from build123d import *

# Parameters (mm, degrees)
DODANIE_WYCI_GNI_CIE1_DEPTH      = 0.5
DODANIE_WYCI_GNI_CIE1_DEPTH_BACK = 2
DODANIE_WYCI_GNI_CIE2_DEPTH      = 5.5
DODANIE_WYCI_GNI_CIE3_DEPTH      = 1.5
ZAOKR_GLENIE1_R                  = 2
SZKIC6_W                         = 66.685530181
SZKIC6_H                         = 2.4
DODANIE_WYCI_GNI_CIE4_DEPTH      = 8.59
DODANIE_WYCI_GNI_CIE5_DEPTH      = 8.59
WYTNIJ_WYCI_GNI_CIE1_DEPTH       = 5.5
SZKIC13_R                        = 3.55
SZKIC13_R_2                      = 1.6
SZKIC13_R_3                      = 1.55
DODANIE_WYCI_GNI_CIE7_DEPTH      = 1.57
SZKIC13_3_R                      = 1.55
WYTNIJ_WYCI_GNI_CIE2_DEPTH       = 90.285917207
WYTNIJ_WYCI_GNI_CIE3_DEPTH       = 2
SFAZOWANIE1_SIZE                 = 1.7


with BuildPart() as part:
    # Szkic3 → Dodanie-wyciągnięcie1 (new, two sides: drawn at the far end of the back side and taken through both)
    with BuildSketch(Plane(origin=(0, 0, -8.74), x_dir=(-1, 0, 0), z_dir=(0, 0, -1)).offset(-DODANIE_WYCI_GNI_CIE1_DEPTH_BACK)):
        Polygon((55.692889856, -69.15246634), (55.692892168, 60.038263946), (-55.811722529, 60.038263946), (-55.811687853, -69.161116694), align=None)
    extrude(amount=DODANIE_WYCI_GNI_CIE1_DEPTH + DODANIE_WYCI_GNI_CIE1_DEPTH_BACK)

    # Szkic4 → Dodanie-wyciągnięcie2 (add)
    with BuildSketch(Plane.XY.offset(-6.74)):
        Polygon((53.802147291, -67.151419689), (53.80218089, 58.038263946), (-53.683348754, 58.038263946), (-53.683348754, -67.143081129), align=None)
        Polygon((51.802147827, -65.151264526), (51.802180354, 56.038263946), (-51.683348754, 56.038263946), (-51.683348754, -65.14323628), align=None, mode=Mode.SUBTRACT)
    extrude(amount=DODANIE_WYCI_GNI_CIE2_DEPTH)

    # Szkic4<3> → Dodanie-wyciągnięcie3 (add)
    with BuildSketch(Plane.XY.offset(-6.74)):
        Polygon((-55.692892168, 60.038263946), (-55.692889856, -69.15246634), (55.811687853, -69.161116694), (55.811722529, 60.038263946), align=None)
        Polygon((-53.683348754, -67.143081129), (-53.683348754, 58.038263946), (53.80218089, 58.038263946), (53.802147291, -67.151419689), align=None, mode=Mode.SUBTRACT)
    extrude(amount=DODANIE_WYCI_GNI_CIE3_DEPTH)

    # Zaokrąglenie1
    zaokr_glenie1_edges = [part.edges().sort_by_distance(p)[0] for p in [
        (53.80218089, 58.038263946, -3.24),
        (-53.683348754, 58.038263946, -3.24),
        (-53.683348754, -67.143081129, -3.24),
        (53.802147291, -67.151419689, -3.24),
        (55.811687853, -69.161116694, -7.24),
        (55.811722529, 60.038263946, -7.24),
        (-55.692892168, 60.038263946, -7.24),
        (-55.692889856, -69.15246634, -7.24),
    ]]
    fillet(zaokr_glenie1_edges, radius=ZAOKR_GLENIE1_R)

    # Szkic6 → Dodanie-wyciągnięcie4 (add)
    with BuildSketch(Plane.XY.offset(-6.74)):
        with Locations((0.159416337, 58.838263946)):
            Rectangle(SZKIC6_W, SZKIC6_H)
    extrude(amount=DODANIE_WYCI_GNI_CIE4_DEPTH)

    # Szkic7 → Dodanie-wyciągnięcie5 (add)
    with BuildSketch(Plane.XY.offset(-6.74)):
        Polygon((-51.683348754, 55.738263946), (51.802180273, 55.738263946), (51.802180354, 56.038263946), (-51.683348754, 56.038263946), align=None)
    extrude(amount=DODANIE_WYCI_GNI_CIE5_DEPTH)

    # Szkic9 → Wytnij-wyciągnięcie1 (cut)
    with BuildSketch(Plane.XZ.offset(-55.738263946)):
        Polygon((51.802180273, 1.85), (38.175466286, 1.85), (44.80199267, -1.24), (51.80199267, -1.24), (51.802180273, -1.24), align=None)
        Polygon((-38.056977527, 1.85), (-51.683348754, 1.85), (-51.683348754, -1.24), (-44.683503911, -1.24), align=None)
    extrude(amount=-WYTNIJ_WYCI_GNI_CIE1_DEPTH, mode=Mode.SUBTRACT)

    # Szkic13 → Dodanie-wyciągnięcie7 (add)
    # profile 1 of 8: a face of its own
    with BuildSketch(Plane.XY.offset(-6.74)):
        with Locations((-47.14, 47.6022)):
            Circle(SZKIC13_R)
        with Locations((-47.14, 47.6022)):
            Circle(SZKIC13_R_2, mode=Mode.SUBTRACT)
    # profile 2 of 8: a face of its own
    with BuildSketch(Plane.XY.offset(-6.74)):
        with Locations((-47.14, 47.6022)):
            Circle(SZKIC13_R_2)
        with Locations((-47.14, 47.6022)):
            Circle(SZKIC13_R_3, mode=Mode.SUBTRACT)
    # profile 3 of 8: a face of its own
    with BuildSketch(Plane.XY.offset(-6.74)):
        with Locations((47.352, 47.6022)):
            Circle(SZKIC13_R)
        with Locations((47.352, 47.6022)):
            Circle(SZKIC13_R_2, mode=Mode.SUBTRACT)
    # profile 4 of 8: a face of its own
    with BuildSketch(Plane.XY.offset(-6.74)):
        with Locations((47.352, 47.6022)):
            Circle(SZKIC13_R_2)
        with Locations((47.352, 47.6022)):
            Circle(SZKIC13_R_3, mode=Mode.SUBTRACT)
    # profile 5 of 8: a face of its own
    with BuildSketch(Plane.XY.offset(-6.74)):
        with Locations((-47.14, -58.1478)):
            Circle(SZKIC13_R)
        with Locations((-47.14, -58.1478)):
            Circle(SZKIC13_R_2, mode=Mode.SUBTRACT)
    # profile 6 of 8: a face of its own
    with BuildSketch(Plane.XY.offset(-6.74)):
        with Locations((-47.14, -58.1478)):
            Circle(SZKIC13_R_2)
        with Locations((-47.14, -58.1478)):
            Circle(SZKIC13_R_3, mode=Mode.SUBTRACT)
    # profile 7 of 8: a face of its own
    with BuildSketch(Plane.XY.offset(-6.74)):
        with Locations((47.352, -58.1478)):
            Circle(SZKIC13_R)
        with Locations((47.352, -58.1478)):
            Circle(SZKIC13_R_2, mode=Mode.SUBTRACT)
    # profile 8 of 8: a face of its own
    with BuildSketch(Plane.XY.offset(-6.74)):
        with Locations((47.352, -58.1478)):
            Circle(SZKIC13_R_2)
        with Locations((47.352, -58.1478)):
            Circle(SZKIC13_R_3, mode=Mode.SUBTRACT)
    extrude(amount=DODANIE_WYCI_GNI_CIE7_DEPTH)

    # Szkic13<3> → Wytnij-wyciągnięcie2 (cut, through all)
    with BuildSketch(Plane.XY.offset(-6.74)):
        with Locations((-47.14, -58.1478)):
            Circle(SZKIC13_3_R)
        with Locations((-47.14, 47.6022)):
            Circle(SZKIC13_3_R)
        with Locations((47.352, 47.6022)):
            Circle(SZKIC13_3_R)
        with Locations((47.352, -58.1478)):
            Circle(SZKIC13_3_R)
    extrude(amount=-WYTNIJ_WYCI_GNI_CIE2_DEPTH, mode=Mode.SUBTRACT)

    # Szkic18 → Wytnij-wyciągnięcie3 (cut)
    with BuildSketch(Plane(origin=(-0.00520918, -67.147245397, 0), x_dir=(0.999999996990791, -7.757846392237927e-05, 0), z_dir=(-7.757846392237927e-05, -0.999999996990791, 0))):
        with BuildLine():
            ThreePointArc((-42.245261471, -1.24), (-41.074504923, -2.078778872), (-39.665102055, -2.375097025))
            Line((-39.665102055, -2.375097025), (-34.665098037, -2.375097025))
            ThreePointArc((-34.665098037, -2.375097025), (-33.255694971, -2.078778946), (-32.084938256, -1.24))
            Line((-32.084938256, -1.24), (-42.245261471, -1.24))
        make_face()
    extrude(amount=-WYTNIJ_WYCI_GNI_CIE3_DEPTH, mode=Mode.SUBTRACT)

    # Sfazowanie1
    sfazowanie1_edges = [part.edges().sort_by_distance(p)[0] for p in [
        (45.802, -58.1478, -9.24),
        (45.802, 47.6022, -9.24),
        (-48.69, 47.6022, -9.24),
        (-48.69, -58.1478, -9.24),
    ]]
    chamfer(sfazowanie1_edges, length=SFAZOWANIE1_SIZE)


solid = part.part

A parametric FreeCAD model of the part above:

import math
import FreeCAD as App
import Part
import Sketcher
from FreeCAD import Vector
Q = App.Units.Quantity


def edges_at(feature, points):
    """Names of the edges that pass closest to the given points."""
    edges = feature.Shape.Edges
    near = lambda p: min(range(len(edges)), key=lambda i: edges[i].distToShape(Part.Vertex(*p))[0])
    return sorted({f"Edge{near(p) + 1}" for p in points})


def add_polygon(sketch, points):
    """Adds a closed chain of lines whose ends are joined by coincident constraints."""
    first, n = sketch.GeometryCount, len(points)
    for a, b in zip(points, points[1:] + points[:1]):
        sketch.addGeometry(Part.LineSegment(App.Vector(*a, 0), App.Vector(*b, 0)), False)
    for i in range(n):
        sketch.addConstraint(Sketcher.Constraint("Coincident", first + i, 2, first + (i + 1) % n, 1))

doc = App.newDocument("Part")
body = doc.addObject("PartDesign::Body", "Body")

sketch1 = body.newObject("Sketcher::SketchObject", "Sketch")
sketch1.AttachmentSupport = (doc.getObject("XY_Plane"), [""])
sketch1.MapMode = "FlatFace"
sketch1.AttachmentOffset = App.Placement(Vector(0, 0, -8.74), App.Rotation())
add_polygon(sketch1, [(-55.69289, -69.152466), (-55.692892, 60.038264), (55.811723, 60.038264), (55.811688, -69.161117)])
sketch1.addConstraint(Sketcher.Constraint("Horizontal", 1))
sketch1.addConstraint(Sketcher.Constraint("Parallel", 0, 2))
sketch1.addConstraint(Sketcher.Constraint("Angle", 0, Q("90.000001 deg")))
sketch1.addConstraint(Sketcher.Constraint("Distance", 0, 129.19073))
sketch1.addConstraint(Sketcher.Constraint("Distance", 2, 129.199381))
sketch1.addConstraint(Sketcher.Constraint("Distance", 3, 111.504578))
sketch1.addConstraint(Sketcher.Constraint("DistanceX", 3, 2, -1, 1, 55.69289))
sketch1.addConstraint(Sketcher.Constraint("DistanceY", -1, 1, 0, 2, 60.038264))
pad1 = body.newObject("PartDesign::Pad", "Pad")
pad1.Profile = sketch1
pad1.Type = "TwoLengths"
pad1.Length = 0.5
pad1.Length2 = 2
pad1.Reversed = True

sketch2 = body.newObject("Sketcher::SketchObject", "Sketch001")
sketch2.AttachmentSupport = (doc.getObject("XY_Plane"), [""])
sketch2.MapMode = "FlatFace"
sketch2.AttachmentOffset = App.Placement(Vector(0, 0, -6.74), App.Rotation())
add_polygon(sketch2, [(53.802147, -67.15142), (53.802181, 58.038264), (-53.683349, 58.038264), (-53.683349, -67.143081)])
add_polygon(sketch2, [(51.80218, 56.038264), (51.802148, -65.151265), (-51.683349, -65.143236), (-51.683349, 56.038264)])
sketch2.addConstraint(Sketcher.Constraint("Horizontal", 1))
sketch2.addConstraint(Sketcher.Constraint("Vertical", 2))
sketch2.addConstraint(Sketcher.Constraint("Vertical", 6))
sketch2.addConstraint(Sketcher.Constraint("Horizontal", 7))
sketch2.addConstraint(Sketcher.Constraint("Parallel", 0, 4))
sketch2.addConstraint(Sketcher.Constraint("Parallel", 3, 5))
sketch2.addConstraint(Sketcher.Constraint("Angle", 0, Q("89.999985 deg")))
sketch2.addConstraint(Sketcher.Constraint("DistanceX", 4, 2, 3, 2, 1.999999))
sketch2.addConstraint(Sketcher.Constraint("DistanceX", 2, 2, 5, 2, 2.0))
sketch2.addConstraint(Sketcher.Constraint("DistanceY", 6, 2, 1, 2, 2.0))
sketch2.addConstraint(Sketcher.Constraint("DistanceY", 6, 1, 6, 2, 121.1815))
sketch2.addConstraint(Sketcher.Constraint("DistanceX", 1, 2, 1, 1, 107.48553))
sketch2.addConstraint(Sketcher.Constraint("Distance", 4, 121.189528))
sketch2.addConstraint(Sketcher.Constraint("DistanceY", 2, 2, 2, 1, 125.181345))
sketch2.addConstraint(Sketcher.Constraint("DistanceX", -1, 1, 0, 2, 53.802181))
sketch2.addConstraint(Sketcher.Constraint("DistanceY", 2, 2, -1, 1, 67.143081))
pad2 = body.newObject("PartDesign::Pad", "Pad001")
pad2.Profile = sketch2
pad2.Length = 5.5

sketch3 = body.newObject("Sketcher::SketchObject", "Sketch002")
sketch3.AttachmentSupport = (doc.getObject("XY_Plane"), [""])
sketch3.MapMode = "FlatFace"
sketch3.AttachmentOffset = App.Placement(Vector(0, 0, -6.74), App.Rotation())
add_polygon(sketch3, [(-55.692892, 60.038264), (-55.69289, -69.152466), (55.811688, -69.161117), (55.811723, 60.038264)])
add_polygon(sketch3, [(53.802147, -67.15142), (-53.683349, -67.143081), (-53.683349, 58.038264), (53.802181, 58.038264)])
sketch3.addConstraint(Sketcher.Constraint("Horizontal", 3))
sketch3.addConstraint(Sketcher.Constraint("Vertical", 5))
sketch3.addConstraint(Sketcher.Constraint("Horizontal", 6))
sketch3.addConstraint(Sketcher.Constraint("DistanceY", 5, 2, 3, 2, 2.0))
sketch3.addConstraint(Sketcher.Constraint("DistanceX", 6, 1, 6, 2, 107.48553))
sketch3.addConstraint(Sketcher.Constraint("Distance", 0, 129.19073))
sketch3.addConstraint(Sketcher.Constraint("Distance", 1, 111.504578))
sketch3.addConstraint(Sketcher.Constraint("Distance", 2, 129.199381))
sketch3.addConstraint(Sketcher.Constraint("DistanceX", 3, 2, 3, 1, 111.504615))
sketch3.addConstraint(Sketcher.Constraint("DistanceY", 5, 1, 5, 2, 125.181345))
sketch3.addConstraint(Sketcher.Constraint("DistanceX", 0, 2, -1, 1, 55.69289))
sketch3.addConstraint(Sketcher.Constraint("DistanceX", 4, 2, -1, 1, 53.683349))
sketch3.addConstraint(Sketcher.Constraint("DistanceY", 4, 2, -1, 1, 67.143081))
sketch3.addConstraint(Sketcher.Constraint("DistanceY", 7, 2, -1, 1, 67.15142))
sketch3.addConstraint(Sketcher.Constraint("DistanceX", 3, 2, 1, 2, 111.50458))
sketch3.addConstraint(Sketcher.Constraint("DistanceX", 7, 2, 1, 2, 2.009541))
pad3 = body.newObject("PartDesign::Pad", "Pad002")
pad3.Profile = sketch3
pad3.Length = 1.5
doc.recompute()

fillet = body.newObject("PartDesign::Fillet", "Fillet")
fillet.Base = (pad3, edges_at(pad3, [
    (53.802, 58.038, -3.24),
    (-53.683, 58.038, -3.24),
    (-53.683, -67.143, -3.24),
    (53.802, -67.151, -3.24),
    (55.812, -69.161, -7.24),
    (55.812, 60.038, -7.24),
    (-55.693, 60.038, -7.24),
    (-55.693, -69.152, -7.24),
]))
fillet.Radius = 2

sketch4 = body.newObject("Sketcher::SketchObject", "Sketch003")
sketch4.AttachmentSupport = (doc.getObject("XY_Plane"), [""])
sketch4.MapMode = "FlatFace"
sketch4.AttachmentOffset = App.Placement(Vector(0, 0, -6.74), App.Rotation())
add_polygon(sketch4, [(-33.183349, 60.038264), (-33.183349, 57.638264), (33.502181, 57.638264), (33.502181, 60.038264)])
sketch4.addConstraint(Sketcher.Constraint("Vertical", 0))
sketch4.addConstraint(Sketcher.Constraint("Horizontal", 1))
sketch4.addConstraint(Sketcher.Constraint("Vertical", 2))
sketch4.addConstraint(Sketcher.Constraint("Horizontal", 3))
sketch4.addConstraint(Sketcher.Constraint("DistanceY", 0, 2, 0, 1, 2.4))
sketch4.addConstraint(Sketcher.Constraint("DistanceX", 1, 1, 1, 2, 66.68553))
sketch4.addConstraint(Sketcher.Constraint("DistanceX", 0, 2, -1, 1, 33.183349))
sketch4.addConstraint(Sketcher.Constraint("DistanceY", -1, 1, 0, 2, 57.638264))
pad4 = body.newObject("PartDesign::Pad", "Pad003")
pad4.Profile = sketch4
pad4.Length = 8.59

sketch5 = body.newObject("Sketcher::SketchObject", "Sketch004")
sketch5.AttachmentSupport = (doc.getObject("XY_Plane"), [""])
sketch5.MapMode = "FlatFace"
sketch5.AttachmentOffset = App.Placement(Vector(0, 0, -6.74), App.Rotation())
add_polygon(sketch5, [(-51.683349, 55.738264), (51.80218, 55.738264), (51.80218, 56.038264), (-51.683349, 56.038264)])
sketch5.addConstraint(Sketcher.Constraint("Horizontal", 0))
sketch5.addConstraint(Sketcher.Constraint("Vertical", 1))
sketch5.addConstraint(Sketcher.Constraint("Horizontal", 2))
sketch5.addConstraint(Sketcher.Constraint("Vertical", 3))
sketch5.addConstraint(Sketcher.Constraint("DistanceY", 1, 1, 1, 2, 0.3))
sketch5.addConstraint(Sketcher.Constraint("DistanceX", 0, 1, 0, 2, 103.485529))
sketch5.addConstraint(Sketcher.Constraint("DistanceX", -1, 1, 0, 2, 51.80218))
sketch5.addConstraint(Sketcher.Constraint("DistanceY", -1, 1, 0, 2, 55.738264))
pad5 = body.newObject("PartDesign::Pad", "Pad004")
pad5.Profile = sketch5
pad5.Length = 8.59

sketch6 = body.newObject("Sketcher::SketchObject", "Sketch005")
sketch6.AttachmentSupport = (doc.getObject("XZ_Plane"), [""])
sketch6.MapMode = "FlatFace"
sketch6.AttachmentOffset = App.Placement(Vector(0, 0, -55.738264), App.Rotation())
add_polygon(sketch6, [(51.80218, 1.85), (38.175466, 1.85), (44.801993, -1.24), (51.80218, -1.24)])
add_polygon(sketch6, [(-38.056978, 1.85), (-51.683349, 1.85), (-51.683349, -1.24), (-44.683504, -1.24)])
sketch6.addConstraint(Sketcher.Constraint("Horizontal", 0))
sketch6.addConstraint(Sketcher.Constraint("Horizontal", 2))
sketch6.addConstraint(Sketcher.Constraint("Vertical", 3))
sketch6.addConstraint(Sketcher.Constraint("Horizontal", 4))
sketch6.addConstraint(Sketcher.Constraint("Vertical", 5))
sketch6.addConstraint(Sketcher.Constraint("Horizontal", 6))
sketch6.addConstraint(Sketcher.Constraint("Horizontal", 3, 2, 4, 2))
sketch6.addConstraint(Sketcher.Constraint("Horizontal", 2, 2, 5, 2))
sketch6.addConstraint(Sketcher.Constraint("Equal", 1, 7))
sketch6.addConstraint(Sketcher.Constraint("Angle", 1, Q("-25 deg")))
sketch6.addConstraint(Sketcher.Constraint("DistanceY", 3, 1, 3, 2, 3.09))
sketch6.addConstraint(Sketcher.Constraint("DistanceY", -1, 1, 0, 2, 1.85))
sketch6.addConstraint(Sketcher.Constraint("DistanceX", 4, 2, 4, 1, 13.626371))
sketch6.addConstraint(Sketcher.Constraint("DistanceX", 0, 2, 0, 1, 13.626714))
sketch6.addConstraint(Sketcher.Constraint("DistanceX", -1, 1, 2, 2, 51.80218))
sketch6.addConstraint(Sketcher.Constraint("DistanceX", 4, 2, -1, 1, 51.683349))
pocket1 = body.newObject("PartDesign::Pocket", "Pocket")
pocket1.Profile = sketch6
pocket1.Length = 5.5

sketch7 = body.newObject("Sketcher::SketchObject", "Sketch006")
sketch7.AttachmentSupport = (doc.getObject("XY_Plane"), [""])
sketch7.MapMode = "FlatFace"
sketch7.AttachmentOffset = App.Placement(Vector(0, 0, -6.74), App.Rotation())
sketch7.addGeometry(Part.Circle(Vector(-47.14, 47.6022, 0), Vector(0, 0, 1), 3.55), False)
sketch7.addGeometry(Part.Circle(Vector(-47.14, 47.6022, 0), Vector(0, 0, 1), 1.55), False)
sketch7.addGeometry(Part.Circle(Vector(47.352, 47.6022, 0), Vector(0, 0, 1), 3.55), False)
sketch7.addGeometry(Part.Circle(Vector(47.352, 47.6022, 0), Vector(0, 0, 1), 1.55), False)
sketch7.addGeometry(Part.Circle(Vector(-47.14, -58.1478, 0), Vector(0, 0, 1), 3.55), False)
sketch7.addGeometry(Part.Circle(Vector(-47.14, -58.1478, 0), Vector(0, 0, 1), 1.55), False)
sketch7.addGeometry(Part.Circle(Vector(47.352, -58.1478, 0), Vector(0, 0, 1), 3.55), False)
sketch7.addGeometry(Part.Circle(Vector(47.352, -58.1478, 0), Vector(0, 0, 1), 1.55), False)
sketch7.addConstraint(Sketcher.Constraint("Coincident", 1, 3, 0, 3))
sketch7.addConstraint(Sketcher.Constraint("Coincident", 3, 3, 2, 3))
sketch7.addConstraint(Sketcher.Constraint("Coincident", 5, 3, 4, 3))
sketch7.addConstraint(Sketcher.Constraint("Coincident", 7, 3, 6, 3))
sketch7.addConstraint(Sketcher.Constraint("Equal", 0, 2))
sketch7.addConstraint(Sketcher.Constraint("Equal", 1, 3))
sketch7.addConstraint(Sketcher.Constraint("Equal", 2, 4))
sketch7.addConstraint(Sketcher.Constraint("Equal", 3, 5))
sketch7.addConstraint(Sketcher.Constraint("Equal", 4, 6))
sketch7.addConstraint(Sketcher.Constraint("Equal", 5, 7))
sketch7.addConstraint(Sketcher.Constraint("Horizontal", 1, 3, 2, 3))
sketch7.addConstraint(Sketcher.Constraint("Horizontal", 5, 3, 6, 3))
sketch7.addConstraint(Sketcher.Constraint("Vertical", 1, 3, 4, 3))
sketch7.addConstraint(Sketcher.Constraint("Vertical", 3, 3, 6, 3))
sketch7.addConstraint(Sketcher.Constraint("Diameter", 0, 7.1))
sketch7.addConstraint(Sketcher.Constraint("Diameter", 1, 3.1))
sketch7.addConstraint(Sketcher.Constraint("DistanceX", 0, 3, -1, 1, 47.14))
sketch7.addConstraint(Sketcher.Constraint("DistanceY", 4, 3, 0, 3, 105.75))
sketch7.addConstraint(Sketcher.Constraint("DistanceX", -1, 1, 2, 3, 47.352))
sketch7.addConstraint(Sketcher.Constraint("DistanceY", -1, 1, 0, 3, 47.6022))
pad6 = body.newObject("PartDesign::Pad", "Pad005")
pad6.Profile = sketch7
pad6.Length = 1.57

sketch8 = body.newObject("Sketcher::SketchObject", "Sketch007")
sketch8.AttachmentSupport = (doc.getObject("XY_Plane"), [""])
sketch8.MapMode = "FlatFace"
sketch8.AttachmentOffset = App.Placement(Vector(0, 0, -6.74), App.Rotation())
sketch8.addGeometry(Part.Circle(Vector(-47.14, -58.1478, 0), Vector(0, 0, 1), 1.55), False)
sketch8.addGeometry(Part.Circle(Vector(-47.14, 47.6022, 0), Vector(0, 0, 1), 1.55), False)
sketch8.addGeometry(Part.Circle(Vector(47.352, 47.6022, 0), Vector(0, 0, 1), 1.55), False)
sketch8.addGeometry(Part.Circle(Vector(47.352, -58.1478, 0), Vector(0, 0, 1), 1.55), False)
sketch8.addConstraint(Sketcher.Constraint("Equal", 0, 1))
sketch8.addConstraint(Sketcher.Constraint("Equal", 1, 2))
sketch8.addConstraint(Sketcher.Constraint("Equal", 2, 3))
sketch8.addConstraint(Sketcher.Constraint("Horizontal", 1, 3, 2, 3))
sketch8.addConstraint(Sketcher.Constraint("Horizontal", 0, 3, 3, 3))
sketch8.addConstraint(Sketcher.Constraint("Vertical", 0, 3, 1, 3))
sketch8.addConstraint(Sketcher.Constraint("Vertical", 2, 3, 3, 3))
sketch8.addConstraint(Sketcher.Constraint("Diameter", 0, 3.1))
sketch8.addConstraint(Sketcher.Constraint("DistanceX", 0, 3, -1, 1, 47.14))
sketch8.addConstraint(Sketcher.Constraint("DistanceY", 0, 3, 1, 3, 105.75))
sketch8.addConstraint(Sketcher.Constraint("DistanceX", -1, 1, 2, 3, 47.352))
sketch8.addConstraint(Sketcher.Constraint("DistanceY", 0, 3, -1, 1, 58.1478))
pocket2 = body.newObject("PartDesign::Pocket", "Pocket001")
pocket2.Profile = sketch8
pocket2.Type = "ThroughAll"

sketch9 = body.newObject("Sketcher::SketchObject", "Sketch008")
sketch9.Placement = App.Placement(Vector(-0.005209, -67.147245, 0), App.Rotation(Vector(0.999999997, -0.000077578, 0), Vector(0, 0, 1), Vector(-0.000077578, -0.999999997, 0), "ZXY"))
sketch9.addGeometry(Part.ArcOfCircle(Part.Circle(Vector(-39.6651, 1.124903, 0), Vector(0, 0, 1), 3.5), math.radians(-137.492511), math.radians(-90.000036)), False)
sketch9.addGeometry(Part.LineSegment(Vector(-39.665102, -2.375097, 0), Vector(-34.665098, -2.375097, 0)), False)
sketch9.addGeometry(Part.ArcOfCircle(Part.Circle(Vector(-34.6651, 1.124903, 0), Vector(0, 0, 1), 3.5), math.radians(-89.99997), math.radians(-42.507489)), False)
sketch9.addGeometry(Part.LineSegment(Vector(-32.084938, -1.24, 0), Vector(-42.245261, -1.24, 0)), False)
sketch9.addConstraint(Sketcher.Constraint("Tangent", 0, 2, 1, 1))
sketch9.addConstraint(Sketcher.Constraint("Tangent", 1, 2, 2, 1))
sketch9.addConstraint(Sketcher.Constraint("Coincident", 2, 2, 3, 1))
sketch9.addConstraint(Sketcher.Constraint("Coincident", 3, 2, 0, 1))
sketch9.addConstraint(Sketcher.Constraint("Horizontal", 1))
sketch9.addConstraint(Sketcher.Constraint("Horizontal", 3))
sketch9.addConstraint(Sketcher.Constraint("Equal", 0, 2))
sketch9.addConstraint(Sketcher.Constraint("Radius", 0, 3.5))
sketch9.addConstraint(Sketcher.Constraint("DistanceX", 0, 3, 2, 3, 5.0))
sketch9.addConstraint(Sketcher.Constraint("DistanceY", 2, 2, -1, 1, 1.24))
sketch9.addConstraint(Sketcher.Constraint("DistanceX", 0, 3, -1, 1, 39.6651))
sketch9.addConstraint(Sketcher.Constraint("DistanceX", 3, 2, 3, 1, 10.160323))
pocket3 = body.newObject("PartDesign::Pocket", "Pocket002")
pocket3.Profile = sketch9
pocket3.Length = 2
doc.recompute()

chamfer = body.newObject("PartDesign::Chamfer", "Chamfer")
chamfer.Base = (pocket3, edges_at(pocket3, [
    (45.802, -58.148, -9.24),
    (45.802, 47.602, -9.24),
    (-48.69, 47.602, -9.24),
    (-48.69, -58.148, -9.24),
]))
chamfer.Size = 1.7

doc.recompute()
